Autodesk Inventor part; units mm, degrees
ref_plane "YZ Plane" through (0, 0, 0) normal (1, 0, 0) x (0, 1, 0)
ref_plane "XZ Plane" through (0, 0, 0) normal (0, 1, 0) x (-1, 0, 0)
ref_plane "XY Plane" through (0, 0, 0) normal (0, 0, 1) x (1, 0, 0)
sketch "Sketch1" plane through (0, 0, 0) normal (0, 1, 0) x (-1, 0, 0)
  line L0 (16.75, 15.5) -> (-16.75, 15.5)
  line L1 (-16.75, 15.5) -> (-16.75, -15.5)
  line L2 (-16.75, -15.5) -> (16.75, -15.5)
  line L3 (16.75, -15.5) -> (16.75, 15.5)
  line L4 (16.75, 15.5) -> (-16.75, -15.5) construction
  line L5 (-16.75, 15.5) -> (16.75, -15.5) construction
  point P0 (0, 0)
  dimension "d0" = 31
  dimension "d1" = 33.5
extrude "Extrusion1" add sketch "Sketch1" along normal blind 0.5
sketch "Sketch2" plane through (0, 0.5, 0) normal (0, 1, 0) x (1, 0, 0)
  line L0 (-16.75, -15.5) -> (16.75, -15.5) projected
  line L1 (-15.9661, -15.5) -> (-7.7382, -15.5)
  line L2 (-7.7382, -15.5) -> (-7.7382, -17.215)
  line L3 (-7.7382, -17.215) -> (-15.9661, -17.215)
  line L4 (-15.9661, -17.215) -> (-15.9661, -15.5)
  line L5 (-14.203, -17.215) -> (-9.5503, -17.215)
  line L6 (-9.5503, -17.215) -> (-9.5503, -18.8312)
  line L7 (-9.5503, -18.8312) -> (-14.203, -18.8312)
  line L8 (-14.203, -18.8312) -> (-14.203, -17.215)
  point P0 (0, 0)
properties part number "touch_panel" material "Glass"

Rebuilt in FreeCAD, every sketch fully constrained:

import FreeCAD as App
import Part
import Sketcher
Q = App.Units.Quantity


def add_polygon(sketch, points):
    """Adds a closed chain of lines whose ends are joined by coincident constraints."""
    first, n = sketch.GeometryCount, len(points)
    for a, b in zip(points, points[1:] + points[:1]):
        sketch.addGeometry(Part.LineSegment(App.Vector(*a, 0), App.Vector(*b, 0)), False)
    for i in range(n):
        sketch.addConstraint(Sketcher.Constraint("Coincident", first + i, 2, first + (i + 1) % n, 1))

doc = App.newDocument("Part")
body = doc.addObject("PartDesign::Body", "Body")

sketch1 = doc.addObject("Sketcher::SketchObject", "Sketch")
body.addObject(sketch1)
sketch1.AttachmentSupport = (doc.XZ_Plane, [""])
sketch1.MapMode = "FlatFace"
add_polygon(sketch1, [(-17, -16), (-17, 16), (17, 16), (17, -16)])
sketch1.addConstraint(Sketcher.Constraint("Vertical", 0))
sketch1.addConstraint(Sketcher.Constraint("Horizontal", 1))
sketch1.addConstraint(Sketcher.Constraint("Vertical", 2))
sketch1.addConstraint(Sketcher.Constraint("Horizontal", 3))
sketch1.addConstraint(Sketcher.Constraint("Symmetric", 0, 2, 2, 2, -1, 1))
sketch1.addConstraint(Sketcher.Constraint("DistanceY", 0, 1, 0, 2, Q("31 mm")))
sketch1.addConstraint(Sketcher.Constraint("DistanceX", 1, 1, 1, 2, Q("33.5 mm")))
pad1 = doc.addObject("PartDesign::Pad", "Pad")
body.addObject(pad1)
pad1.Profile = sketch1
pad1.Length = 0.5
pad1.Reversed = True

doc.recompute()
